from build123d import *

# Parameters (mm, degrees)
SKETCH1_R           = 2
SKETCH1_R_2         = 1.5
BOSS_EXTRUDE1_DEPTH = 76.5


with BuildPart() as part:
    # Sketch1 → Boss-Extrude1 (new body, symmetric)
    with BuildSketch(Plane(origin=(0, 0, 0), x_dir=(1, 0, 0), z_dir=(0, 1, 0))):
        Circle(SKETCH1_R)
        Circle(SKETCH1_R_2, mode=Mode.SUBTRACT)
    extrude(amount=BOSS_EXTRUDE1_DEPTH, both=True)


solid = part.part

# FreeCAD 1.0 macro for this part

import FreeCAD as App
import Part
import Sketcher

doc = App.newDocument("Part")
body = doc.addObject("PartDesign::Body", "Body")

# Sketch on XZ plane
sketch1 = body.newObject("Sketcher::SketchObject", "Sketch")
sketch1.AttachmentSupport = (doc.getObject("XZ_Plane"), [""])
sketch1.MapMode = "FlatFace"
sketch1.addGeometry([
    Part.Circle(App.Vector(0, 0, 0), App.Vector(0, 0, 1), 2),
    Part.Circle(App.Vector(0, 0, 0), App.Vector(0, 0, 1), 1.5),
], False)
sketch1.addConstraint([
    Sketcher.Constraint("Coincident", 0, 3, -1, 1),
    Sketcher.Constraint("Coincident", 1, 3, -1, 1),
    Sketcher.Constraint("Diameter", 0, 4.0),
    Sketcher.Constraint("Diameter", 1, 3.0),
])
pad1 = body.newObject("PartDesign::Pad", "Pad")
pad1.Profile = sketch1
pad1.Length = 153
pad1.Midplane = True

doc.recompute()
